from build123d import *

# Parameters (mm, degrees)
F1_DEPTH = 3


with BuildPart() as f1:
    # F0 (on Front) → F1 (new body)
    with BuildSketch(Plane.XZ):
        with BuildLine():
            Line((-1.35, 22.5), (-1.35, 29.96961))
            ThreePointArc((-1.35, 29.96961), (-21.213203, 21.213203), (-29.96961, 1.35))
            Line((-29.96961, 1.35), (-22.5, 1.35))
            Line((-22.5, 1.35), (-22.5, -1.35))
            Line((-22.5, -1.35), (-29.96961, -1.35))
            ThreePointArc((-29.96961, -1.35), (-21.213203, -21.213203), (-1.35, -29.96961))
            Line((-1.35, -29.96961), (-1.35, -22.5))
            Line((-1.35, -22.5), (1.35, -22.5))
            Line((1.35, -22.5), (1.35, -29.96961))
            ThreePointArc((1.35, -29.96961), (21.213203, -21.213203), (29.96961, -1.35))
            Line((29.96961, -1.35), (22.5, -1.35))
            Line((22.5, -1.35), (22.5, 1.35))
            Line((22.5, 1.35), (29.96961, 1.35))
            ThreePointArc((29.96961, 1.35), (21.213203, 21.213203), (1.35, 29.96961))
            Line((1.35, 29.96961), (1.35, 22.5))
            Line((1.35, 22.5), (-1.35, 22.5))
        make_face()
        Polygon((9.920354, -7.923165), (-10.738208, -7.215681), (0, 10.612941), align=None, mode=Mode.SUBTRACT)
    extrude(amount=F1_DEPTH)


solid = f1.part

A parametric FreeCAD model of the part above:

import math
import FreeCAD as App
import Part
import Sketcher
from FreeCAD import Vector
Q = App.Units.Quantity


def add_polygon(sketch, points):
    """Adds a closed chain of lines whose ends are joined by coincident constraints."""
    first, n = sketch.GeometryCount, len(points)
    for a, b in zip(points, points[1:] + points[:1]):
        sketch.addGeometry(Part.LineSegment(App.Vector(*a, 0), App.Vector(*b, 0)), False)
    for i in range(n):
        sketch.addConstraint(Sketcher.Constraint("Coincident", first + i, 2, first + (i + 1) % n, 1))

doc = App.newDocument("Part")
params = doc.addObject("Spreadsheet::Sheet", "Params")
for row, (alias, value) in enumerate([
    ("sketch1_width", "2.7 mm"),
    ("pad1_length", "3 mm"),
], start=1):
    params.set(f"A{row}", alias)
    params.set(f"B{row}", "=" + value)
    params.setAlias(f"B{row}", alias)

body = doc.addObject("PartDesign::Body", "Body")

# Sketch on XZ plane
sketch1 = body.newObject("Sketcher::SketchObject", "Sketch")
sketch1.AttachmentSupport = (doc.getObject("XZ_Plane"), [""])
sketch1.MapMode = "FlatFace"
sketch1.addGeometry(Part.LineSegment(Vector(-1.4, 22.5, 0), Vector(-1.4, 30, 0)), False)  # 0
sketch1.addGeometry(Part.ArcOfCircle(Part.Circle(Vector(0, 0, 0), Vector(0, 0, 1), 30), math.radians(93), math.radians(177)), False)  # 1
sketch1.addGeometry(Part.LineSegment(Vector(-30, 1.4, 0), Vector(-22.5, 1.4, 0)), False)  # 2
sketch1.addGeometry(Part.LineSegment(Vector(-22.5, 1.4, 0), Vector(-22.5, -1.4, 0)), False)  # 3
sketch1.addGeometry(Part.LineSegment(Vector(-22.5, -1.4, 0), Vector(-30, -1.4, 0)), False)  # 4
sketch1.addGeometry(Part.ArcOfCircle(Part.Circle(Vector(0, 0, 0), Vector(0, 0, 1), 30), math.radians(-177), math.radians(-93)), False)  # 5
sketch1.addGeometry(Part.LineSegment(Vector(-1.4, -30, 0), Vector(-1.4, -22.5, 0)), False)  # 6
sketch1.addGeometry(Part.LineSegment(Vector(-1.4, -22.5, 0), Vector(1.4, -22.5, 0)), False)  # 7
sketch1.addGeometry(Part.LineSegment(Vector(1.4, -22.5, 0), Vector(1.4, -30, 0)), False)  # 8
sketch1.addGeometry(Part.ArcOfCircle(Part.Circle(Vector(0, 0, 0), Vector(0, 0, 1), 30), math.radians(-87), math.radians(-3)), False)  # 9
sketch1.addGeometry(Part.LineSegment(Vector(30, -1.4, 0), Vector(22.5, -1.4, 0)), False)  # 10
sketch1.addGeometry(Part.LineSegment(Vector(22.5, -1.4, 0), Vector(22.5, 1.4, 0)), False)  # 11
sketch1.addGeometry(Part.LineSegment(Vector(22.5, 1.4, 0), Vector(30, 1.4, 0)), False)  # 12
sketch1.addGeometry(Part.ArcOfCircle(Part.Circle(Vector(0, 0, 0), Vector(0, 0, 1), 30), math.radians(3), math.radians(87)), False)  # 13
sketch1.addGeometry(Part.LineSegment(Vector(1.4, 30, 0), Vector(1.4, 22.5, 0)), False)  # 14
sketch1.addGeometry(Part.LineSegment(Vector(1.4, 22.5, 0), Vector(-1.4, 22.5, 0)), False)  # 15
add_polygon(sketch1, [(0, 10.6), (9.9, -7.9), (-10.7, -7.2)])  # lines 16-18
sketch1.addConstraint([
    Sketcher.Constraint("Coincident", 0, 2, 1, 1),
    Sketcher.Constraint("Coincident", 1, 2, 2, 1),
    Sketcher.Constraint("Coincident", 2, 2, 3, 1),
    Sketcher.Constraint("Coincident", 3, 2, 4, 1),
    Sketcher.Constraint("Coincident", 4, 2, 5, 1),
    Sketcher.Constraint("Coincident", 5, 2, 6, 1),
    Sketcher.Constraint("Coincident", 6, 2, 7, 1),
    Sketcher.Constraint("Coincident", 7, 2, 8, 1),
    Sketcher.Constraint("Coincident", 8, 2, 9, 1),
    Sketcher.Constraint("Coincident", 9, 2, 10, 1),
    Sketcher.Constraint("Coincident", 10, 2, 11, 1),
    Sketcher.Constraint("Coincident", 11, 2, 12, 1),
    Sketcher.Constraint("Coincident", 12, 2, 13, 1),
    Sketcher.Constraint("Coincident", 13, 2, 14, 1),
    Sketcher.Constraint("Coincident", 14, 2, 15, 1),
    Sketcher.Constraint("Coincident", 15, 2, 0, 1),
    Sketcher.Constraint("Vertical", 0),
    Sketcher.Constraint("Horizontal", 2),
    Sketcher.Constraint("Vertical", 3),
    Sketcher.Constraint("Horizontal", 4),
    Sketcher.Constraint("Vertical", 6),
    Sketcher.Constraint("Horizontal", 7),
    Sketcher.Constraint("Vertical", 8),
    Sketcher.Constraint("Horizontal", 10),
    Sketcher.Constraint("Vertical", 11),
    Sketcher.Constraint("Horizontal", 12),
    Sketcher.Constraint("Vertical", 14),
    Sketcher.Constraint("Horizontal", 15),
    Sketcher.Constraint("Coincident", 1, 3, -1, 1),
    Sketcher.Constraint("Coincident", 5, 3, -1, 1),
    Sketcher.Constraint("Coincident", 9, 3, -1, 1),
    Sketcher.Constraint("Coincident", 13, 3, -1, 1),
    Sketcher.Constraint("Equal", 1, 5),
    Sketcher.Constraint("Equal", 5, 9),
    Sketcher.Constraint("Equal", 9, 13),
    Sketcher.Constraint("Symmetric", 2, 2, 10, 2, -1, 1),
    Sketcher.Constraint("Symmetric", 6, 2, 14, 2, -1, 1),
    Sketcher.Constraint("PointOnObject", 18, 2, -2),
    Sketcher.Constraint("Horizontal", 5, 2, 8, 2),
    Sketcher.Constraint("Horizontal", 4, 2, 9, 2),
    Sketcher.Constraint("Horizontal", 2, 2, 11, 2),
    Sketcher.Constraint("Horizontal", 0, 2, 13, 2),
    Sketcher.Constraint("Equal", 12, 0),
    Sketcher.Constraint("Equal", 15, 3),
    Sketcher.Constraint("DistanceX", 7, 1, 7, 2, Q("2.7 mm")),
    Sketcher.Constraint("DistanceX", 2, 2, -1, 1, Q("22.5 mm")),
    Sketcher.Constraint("Radius", 1, Q("30.000003 mm")),
    Sketcher.Constraint("Distance", 16, Q("21.023811 mm")),
    Sketcher.Constraint("Distance", 18, Q("20.812709 mm")),
    Sketcher.Constraint("DistanceY", 17, 2, -1, 1, Q("7.215681 mm")),
    Sketcher.Constraint("DistanceY", -1, 1, 18, 2, Q("10.612941 mm")),
    Sketcher.Constraint("DistanceX", 1, 3, 16, 2, Q("9.920351 mm")),
])
sketch1.setExpression("Constraints[47]", "Params.sketch1_width")
pad1 = body.newObject("PartDesign::Pad", "Pad")
pad1.Profile = sketch1
pad1.setExpression("Length", "Params.pad1_length")

doc.recompute()
